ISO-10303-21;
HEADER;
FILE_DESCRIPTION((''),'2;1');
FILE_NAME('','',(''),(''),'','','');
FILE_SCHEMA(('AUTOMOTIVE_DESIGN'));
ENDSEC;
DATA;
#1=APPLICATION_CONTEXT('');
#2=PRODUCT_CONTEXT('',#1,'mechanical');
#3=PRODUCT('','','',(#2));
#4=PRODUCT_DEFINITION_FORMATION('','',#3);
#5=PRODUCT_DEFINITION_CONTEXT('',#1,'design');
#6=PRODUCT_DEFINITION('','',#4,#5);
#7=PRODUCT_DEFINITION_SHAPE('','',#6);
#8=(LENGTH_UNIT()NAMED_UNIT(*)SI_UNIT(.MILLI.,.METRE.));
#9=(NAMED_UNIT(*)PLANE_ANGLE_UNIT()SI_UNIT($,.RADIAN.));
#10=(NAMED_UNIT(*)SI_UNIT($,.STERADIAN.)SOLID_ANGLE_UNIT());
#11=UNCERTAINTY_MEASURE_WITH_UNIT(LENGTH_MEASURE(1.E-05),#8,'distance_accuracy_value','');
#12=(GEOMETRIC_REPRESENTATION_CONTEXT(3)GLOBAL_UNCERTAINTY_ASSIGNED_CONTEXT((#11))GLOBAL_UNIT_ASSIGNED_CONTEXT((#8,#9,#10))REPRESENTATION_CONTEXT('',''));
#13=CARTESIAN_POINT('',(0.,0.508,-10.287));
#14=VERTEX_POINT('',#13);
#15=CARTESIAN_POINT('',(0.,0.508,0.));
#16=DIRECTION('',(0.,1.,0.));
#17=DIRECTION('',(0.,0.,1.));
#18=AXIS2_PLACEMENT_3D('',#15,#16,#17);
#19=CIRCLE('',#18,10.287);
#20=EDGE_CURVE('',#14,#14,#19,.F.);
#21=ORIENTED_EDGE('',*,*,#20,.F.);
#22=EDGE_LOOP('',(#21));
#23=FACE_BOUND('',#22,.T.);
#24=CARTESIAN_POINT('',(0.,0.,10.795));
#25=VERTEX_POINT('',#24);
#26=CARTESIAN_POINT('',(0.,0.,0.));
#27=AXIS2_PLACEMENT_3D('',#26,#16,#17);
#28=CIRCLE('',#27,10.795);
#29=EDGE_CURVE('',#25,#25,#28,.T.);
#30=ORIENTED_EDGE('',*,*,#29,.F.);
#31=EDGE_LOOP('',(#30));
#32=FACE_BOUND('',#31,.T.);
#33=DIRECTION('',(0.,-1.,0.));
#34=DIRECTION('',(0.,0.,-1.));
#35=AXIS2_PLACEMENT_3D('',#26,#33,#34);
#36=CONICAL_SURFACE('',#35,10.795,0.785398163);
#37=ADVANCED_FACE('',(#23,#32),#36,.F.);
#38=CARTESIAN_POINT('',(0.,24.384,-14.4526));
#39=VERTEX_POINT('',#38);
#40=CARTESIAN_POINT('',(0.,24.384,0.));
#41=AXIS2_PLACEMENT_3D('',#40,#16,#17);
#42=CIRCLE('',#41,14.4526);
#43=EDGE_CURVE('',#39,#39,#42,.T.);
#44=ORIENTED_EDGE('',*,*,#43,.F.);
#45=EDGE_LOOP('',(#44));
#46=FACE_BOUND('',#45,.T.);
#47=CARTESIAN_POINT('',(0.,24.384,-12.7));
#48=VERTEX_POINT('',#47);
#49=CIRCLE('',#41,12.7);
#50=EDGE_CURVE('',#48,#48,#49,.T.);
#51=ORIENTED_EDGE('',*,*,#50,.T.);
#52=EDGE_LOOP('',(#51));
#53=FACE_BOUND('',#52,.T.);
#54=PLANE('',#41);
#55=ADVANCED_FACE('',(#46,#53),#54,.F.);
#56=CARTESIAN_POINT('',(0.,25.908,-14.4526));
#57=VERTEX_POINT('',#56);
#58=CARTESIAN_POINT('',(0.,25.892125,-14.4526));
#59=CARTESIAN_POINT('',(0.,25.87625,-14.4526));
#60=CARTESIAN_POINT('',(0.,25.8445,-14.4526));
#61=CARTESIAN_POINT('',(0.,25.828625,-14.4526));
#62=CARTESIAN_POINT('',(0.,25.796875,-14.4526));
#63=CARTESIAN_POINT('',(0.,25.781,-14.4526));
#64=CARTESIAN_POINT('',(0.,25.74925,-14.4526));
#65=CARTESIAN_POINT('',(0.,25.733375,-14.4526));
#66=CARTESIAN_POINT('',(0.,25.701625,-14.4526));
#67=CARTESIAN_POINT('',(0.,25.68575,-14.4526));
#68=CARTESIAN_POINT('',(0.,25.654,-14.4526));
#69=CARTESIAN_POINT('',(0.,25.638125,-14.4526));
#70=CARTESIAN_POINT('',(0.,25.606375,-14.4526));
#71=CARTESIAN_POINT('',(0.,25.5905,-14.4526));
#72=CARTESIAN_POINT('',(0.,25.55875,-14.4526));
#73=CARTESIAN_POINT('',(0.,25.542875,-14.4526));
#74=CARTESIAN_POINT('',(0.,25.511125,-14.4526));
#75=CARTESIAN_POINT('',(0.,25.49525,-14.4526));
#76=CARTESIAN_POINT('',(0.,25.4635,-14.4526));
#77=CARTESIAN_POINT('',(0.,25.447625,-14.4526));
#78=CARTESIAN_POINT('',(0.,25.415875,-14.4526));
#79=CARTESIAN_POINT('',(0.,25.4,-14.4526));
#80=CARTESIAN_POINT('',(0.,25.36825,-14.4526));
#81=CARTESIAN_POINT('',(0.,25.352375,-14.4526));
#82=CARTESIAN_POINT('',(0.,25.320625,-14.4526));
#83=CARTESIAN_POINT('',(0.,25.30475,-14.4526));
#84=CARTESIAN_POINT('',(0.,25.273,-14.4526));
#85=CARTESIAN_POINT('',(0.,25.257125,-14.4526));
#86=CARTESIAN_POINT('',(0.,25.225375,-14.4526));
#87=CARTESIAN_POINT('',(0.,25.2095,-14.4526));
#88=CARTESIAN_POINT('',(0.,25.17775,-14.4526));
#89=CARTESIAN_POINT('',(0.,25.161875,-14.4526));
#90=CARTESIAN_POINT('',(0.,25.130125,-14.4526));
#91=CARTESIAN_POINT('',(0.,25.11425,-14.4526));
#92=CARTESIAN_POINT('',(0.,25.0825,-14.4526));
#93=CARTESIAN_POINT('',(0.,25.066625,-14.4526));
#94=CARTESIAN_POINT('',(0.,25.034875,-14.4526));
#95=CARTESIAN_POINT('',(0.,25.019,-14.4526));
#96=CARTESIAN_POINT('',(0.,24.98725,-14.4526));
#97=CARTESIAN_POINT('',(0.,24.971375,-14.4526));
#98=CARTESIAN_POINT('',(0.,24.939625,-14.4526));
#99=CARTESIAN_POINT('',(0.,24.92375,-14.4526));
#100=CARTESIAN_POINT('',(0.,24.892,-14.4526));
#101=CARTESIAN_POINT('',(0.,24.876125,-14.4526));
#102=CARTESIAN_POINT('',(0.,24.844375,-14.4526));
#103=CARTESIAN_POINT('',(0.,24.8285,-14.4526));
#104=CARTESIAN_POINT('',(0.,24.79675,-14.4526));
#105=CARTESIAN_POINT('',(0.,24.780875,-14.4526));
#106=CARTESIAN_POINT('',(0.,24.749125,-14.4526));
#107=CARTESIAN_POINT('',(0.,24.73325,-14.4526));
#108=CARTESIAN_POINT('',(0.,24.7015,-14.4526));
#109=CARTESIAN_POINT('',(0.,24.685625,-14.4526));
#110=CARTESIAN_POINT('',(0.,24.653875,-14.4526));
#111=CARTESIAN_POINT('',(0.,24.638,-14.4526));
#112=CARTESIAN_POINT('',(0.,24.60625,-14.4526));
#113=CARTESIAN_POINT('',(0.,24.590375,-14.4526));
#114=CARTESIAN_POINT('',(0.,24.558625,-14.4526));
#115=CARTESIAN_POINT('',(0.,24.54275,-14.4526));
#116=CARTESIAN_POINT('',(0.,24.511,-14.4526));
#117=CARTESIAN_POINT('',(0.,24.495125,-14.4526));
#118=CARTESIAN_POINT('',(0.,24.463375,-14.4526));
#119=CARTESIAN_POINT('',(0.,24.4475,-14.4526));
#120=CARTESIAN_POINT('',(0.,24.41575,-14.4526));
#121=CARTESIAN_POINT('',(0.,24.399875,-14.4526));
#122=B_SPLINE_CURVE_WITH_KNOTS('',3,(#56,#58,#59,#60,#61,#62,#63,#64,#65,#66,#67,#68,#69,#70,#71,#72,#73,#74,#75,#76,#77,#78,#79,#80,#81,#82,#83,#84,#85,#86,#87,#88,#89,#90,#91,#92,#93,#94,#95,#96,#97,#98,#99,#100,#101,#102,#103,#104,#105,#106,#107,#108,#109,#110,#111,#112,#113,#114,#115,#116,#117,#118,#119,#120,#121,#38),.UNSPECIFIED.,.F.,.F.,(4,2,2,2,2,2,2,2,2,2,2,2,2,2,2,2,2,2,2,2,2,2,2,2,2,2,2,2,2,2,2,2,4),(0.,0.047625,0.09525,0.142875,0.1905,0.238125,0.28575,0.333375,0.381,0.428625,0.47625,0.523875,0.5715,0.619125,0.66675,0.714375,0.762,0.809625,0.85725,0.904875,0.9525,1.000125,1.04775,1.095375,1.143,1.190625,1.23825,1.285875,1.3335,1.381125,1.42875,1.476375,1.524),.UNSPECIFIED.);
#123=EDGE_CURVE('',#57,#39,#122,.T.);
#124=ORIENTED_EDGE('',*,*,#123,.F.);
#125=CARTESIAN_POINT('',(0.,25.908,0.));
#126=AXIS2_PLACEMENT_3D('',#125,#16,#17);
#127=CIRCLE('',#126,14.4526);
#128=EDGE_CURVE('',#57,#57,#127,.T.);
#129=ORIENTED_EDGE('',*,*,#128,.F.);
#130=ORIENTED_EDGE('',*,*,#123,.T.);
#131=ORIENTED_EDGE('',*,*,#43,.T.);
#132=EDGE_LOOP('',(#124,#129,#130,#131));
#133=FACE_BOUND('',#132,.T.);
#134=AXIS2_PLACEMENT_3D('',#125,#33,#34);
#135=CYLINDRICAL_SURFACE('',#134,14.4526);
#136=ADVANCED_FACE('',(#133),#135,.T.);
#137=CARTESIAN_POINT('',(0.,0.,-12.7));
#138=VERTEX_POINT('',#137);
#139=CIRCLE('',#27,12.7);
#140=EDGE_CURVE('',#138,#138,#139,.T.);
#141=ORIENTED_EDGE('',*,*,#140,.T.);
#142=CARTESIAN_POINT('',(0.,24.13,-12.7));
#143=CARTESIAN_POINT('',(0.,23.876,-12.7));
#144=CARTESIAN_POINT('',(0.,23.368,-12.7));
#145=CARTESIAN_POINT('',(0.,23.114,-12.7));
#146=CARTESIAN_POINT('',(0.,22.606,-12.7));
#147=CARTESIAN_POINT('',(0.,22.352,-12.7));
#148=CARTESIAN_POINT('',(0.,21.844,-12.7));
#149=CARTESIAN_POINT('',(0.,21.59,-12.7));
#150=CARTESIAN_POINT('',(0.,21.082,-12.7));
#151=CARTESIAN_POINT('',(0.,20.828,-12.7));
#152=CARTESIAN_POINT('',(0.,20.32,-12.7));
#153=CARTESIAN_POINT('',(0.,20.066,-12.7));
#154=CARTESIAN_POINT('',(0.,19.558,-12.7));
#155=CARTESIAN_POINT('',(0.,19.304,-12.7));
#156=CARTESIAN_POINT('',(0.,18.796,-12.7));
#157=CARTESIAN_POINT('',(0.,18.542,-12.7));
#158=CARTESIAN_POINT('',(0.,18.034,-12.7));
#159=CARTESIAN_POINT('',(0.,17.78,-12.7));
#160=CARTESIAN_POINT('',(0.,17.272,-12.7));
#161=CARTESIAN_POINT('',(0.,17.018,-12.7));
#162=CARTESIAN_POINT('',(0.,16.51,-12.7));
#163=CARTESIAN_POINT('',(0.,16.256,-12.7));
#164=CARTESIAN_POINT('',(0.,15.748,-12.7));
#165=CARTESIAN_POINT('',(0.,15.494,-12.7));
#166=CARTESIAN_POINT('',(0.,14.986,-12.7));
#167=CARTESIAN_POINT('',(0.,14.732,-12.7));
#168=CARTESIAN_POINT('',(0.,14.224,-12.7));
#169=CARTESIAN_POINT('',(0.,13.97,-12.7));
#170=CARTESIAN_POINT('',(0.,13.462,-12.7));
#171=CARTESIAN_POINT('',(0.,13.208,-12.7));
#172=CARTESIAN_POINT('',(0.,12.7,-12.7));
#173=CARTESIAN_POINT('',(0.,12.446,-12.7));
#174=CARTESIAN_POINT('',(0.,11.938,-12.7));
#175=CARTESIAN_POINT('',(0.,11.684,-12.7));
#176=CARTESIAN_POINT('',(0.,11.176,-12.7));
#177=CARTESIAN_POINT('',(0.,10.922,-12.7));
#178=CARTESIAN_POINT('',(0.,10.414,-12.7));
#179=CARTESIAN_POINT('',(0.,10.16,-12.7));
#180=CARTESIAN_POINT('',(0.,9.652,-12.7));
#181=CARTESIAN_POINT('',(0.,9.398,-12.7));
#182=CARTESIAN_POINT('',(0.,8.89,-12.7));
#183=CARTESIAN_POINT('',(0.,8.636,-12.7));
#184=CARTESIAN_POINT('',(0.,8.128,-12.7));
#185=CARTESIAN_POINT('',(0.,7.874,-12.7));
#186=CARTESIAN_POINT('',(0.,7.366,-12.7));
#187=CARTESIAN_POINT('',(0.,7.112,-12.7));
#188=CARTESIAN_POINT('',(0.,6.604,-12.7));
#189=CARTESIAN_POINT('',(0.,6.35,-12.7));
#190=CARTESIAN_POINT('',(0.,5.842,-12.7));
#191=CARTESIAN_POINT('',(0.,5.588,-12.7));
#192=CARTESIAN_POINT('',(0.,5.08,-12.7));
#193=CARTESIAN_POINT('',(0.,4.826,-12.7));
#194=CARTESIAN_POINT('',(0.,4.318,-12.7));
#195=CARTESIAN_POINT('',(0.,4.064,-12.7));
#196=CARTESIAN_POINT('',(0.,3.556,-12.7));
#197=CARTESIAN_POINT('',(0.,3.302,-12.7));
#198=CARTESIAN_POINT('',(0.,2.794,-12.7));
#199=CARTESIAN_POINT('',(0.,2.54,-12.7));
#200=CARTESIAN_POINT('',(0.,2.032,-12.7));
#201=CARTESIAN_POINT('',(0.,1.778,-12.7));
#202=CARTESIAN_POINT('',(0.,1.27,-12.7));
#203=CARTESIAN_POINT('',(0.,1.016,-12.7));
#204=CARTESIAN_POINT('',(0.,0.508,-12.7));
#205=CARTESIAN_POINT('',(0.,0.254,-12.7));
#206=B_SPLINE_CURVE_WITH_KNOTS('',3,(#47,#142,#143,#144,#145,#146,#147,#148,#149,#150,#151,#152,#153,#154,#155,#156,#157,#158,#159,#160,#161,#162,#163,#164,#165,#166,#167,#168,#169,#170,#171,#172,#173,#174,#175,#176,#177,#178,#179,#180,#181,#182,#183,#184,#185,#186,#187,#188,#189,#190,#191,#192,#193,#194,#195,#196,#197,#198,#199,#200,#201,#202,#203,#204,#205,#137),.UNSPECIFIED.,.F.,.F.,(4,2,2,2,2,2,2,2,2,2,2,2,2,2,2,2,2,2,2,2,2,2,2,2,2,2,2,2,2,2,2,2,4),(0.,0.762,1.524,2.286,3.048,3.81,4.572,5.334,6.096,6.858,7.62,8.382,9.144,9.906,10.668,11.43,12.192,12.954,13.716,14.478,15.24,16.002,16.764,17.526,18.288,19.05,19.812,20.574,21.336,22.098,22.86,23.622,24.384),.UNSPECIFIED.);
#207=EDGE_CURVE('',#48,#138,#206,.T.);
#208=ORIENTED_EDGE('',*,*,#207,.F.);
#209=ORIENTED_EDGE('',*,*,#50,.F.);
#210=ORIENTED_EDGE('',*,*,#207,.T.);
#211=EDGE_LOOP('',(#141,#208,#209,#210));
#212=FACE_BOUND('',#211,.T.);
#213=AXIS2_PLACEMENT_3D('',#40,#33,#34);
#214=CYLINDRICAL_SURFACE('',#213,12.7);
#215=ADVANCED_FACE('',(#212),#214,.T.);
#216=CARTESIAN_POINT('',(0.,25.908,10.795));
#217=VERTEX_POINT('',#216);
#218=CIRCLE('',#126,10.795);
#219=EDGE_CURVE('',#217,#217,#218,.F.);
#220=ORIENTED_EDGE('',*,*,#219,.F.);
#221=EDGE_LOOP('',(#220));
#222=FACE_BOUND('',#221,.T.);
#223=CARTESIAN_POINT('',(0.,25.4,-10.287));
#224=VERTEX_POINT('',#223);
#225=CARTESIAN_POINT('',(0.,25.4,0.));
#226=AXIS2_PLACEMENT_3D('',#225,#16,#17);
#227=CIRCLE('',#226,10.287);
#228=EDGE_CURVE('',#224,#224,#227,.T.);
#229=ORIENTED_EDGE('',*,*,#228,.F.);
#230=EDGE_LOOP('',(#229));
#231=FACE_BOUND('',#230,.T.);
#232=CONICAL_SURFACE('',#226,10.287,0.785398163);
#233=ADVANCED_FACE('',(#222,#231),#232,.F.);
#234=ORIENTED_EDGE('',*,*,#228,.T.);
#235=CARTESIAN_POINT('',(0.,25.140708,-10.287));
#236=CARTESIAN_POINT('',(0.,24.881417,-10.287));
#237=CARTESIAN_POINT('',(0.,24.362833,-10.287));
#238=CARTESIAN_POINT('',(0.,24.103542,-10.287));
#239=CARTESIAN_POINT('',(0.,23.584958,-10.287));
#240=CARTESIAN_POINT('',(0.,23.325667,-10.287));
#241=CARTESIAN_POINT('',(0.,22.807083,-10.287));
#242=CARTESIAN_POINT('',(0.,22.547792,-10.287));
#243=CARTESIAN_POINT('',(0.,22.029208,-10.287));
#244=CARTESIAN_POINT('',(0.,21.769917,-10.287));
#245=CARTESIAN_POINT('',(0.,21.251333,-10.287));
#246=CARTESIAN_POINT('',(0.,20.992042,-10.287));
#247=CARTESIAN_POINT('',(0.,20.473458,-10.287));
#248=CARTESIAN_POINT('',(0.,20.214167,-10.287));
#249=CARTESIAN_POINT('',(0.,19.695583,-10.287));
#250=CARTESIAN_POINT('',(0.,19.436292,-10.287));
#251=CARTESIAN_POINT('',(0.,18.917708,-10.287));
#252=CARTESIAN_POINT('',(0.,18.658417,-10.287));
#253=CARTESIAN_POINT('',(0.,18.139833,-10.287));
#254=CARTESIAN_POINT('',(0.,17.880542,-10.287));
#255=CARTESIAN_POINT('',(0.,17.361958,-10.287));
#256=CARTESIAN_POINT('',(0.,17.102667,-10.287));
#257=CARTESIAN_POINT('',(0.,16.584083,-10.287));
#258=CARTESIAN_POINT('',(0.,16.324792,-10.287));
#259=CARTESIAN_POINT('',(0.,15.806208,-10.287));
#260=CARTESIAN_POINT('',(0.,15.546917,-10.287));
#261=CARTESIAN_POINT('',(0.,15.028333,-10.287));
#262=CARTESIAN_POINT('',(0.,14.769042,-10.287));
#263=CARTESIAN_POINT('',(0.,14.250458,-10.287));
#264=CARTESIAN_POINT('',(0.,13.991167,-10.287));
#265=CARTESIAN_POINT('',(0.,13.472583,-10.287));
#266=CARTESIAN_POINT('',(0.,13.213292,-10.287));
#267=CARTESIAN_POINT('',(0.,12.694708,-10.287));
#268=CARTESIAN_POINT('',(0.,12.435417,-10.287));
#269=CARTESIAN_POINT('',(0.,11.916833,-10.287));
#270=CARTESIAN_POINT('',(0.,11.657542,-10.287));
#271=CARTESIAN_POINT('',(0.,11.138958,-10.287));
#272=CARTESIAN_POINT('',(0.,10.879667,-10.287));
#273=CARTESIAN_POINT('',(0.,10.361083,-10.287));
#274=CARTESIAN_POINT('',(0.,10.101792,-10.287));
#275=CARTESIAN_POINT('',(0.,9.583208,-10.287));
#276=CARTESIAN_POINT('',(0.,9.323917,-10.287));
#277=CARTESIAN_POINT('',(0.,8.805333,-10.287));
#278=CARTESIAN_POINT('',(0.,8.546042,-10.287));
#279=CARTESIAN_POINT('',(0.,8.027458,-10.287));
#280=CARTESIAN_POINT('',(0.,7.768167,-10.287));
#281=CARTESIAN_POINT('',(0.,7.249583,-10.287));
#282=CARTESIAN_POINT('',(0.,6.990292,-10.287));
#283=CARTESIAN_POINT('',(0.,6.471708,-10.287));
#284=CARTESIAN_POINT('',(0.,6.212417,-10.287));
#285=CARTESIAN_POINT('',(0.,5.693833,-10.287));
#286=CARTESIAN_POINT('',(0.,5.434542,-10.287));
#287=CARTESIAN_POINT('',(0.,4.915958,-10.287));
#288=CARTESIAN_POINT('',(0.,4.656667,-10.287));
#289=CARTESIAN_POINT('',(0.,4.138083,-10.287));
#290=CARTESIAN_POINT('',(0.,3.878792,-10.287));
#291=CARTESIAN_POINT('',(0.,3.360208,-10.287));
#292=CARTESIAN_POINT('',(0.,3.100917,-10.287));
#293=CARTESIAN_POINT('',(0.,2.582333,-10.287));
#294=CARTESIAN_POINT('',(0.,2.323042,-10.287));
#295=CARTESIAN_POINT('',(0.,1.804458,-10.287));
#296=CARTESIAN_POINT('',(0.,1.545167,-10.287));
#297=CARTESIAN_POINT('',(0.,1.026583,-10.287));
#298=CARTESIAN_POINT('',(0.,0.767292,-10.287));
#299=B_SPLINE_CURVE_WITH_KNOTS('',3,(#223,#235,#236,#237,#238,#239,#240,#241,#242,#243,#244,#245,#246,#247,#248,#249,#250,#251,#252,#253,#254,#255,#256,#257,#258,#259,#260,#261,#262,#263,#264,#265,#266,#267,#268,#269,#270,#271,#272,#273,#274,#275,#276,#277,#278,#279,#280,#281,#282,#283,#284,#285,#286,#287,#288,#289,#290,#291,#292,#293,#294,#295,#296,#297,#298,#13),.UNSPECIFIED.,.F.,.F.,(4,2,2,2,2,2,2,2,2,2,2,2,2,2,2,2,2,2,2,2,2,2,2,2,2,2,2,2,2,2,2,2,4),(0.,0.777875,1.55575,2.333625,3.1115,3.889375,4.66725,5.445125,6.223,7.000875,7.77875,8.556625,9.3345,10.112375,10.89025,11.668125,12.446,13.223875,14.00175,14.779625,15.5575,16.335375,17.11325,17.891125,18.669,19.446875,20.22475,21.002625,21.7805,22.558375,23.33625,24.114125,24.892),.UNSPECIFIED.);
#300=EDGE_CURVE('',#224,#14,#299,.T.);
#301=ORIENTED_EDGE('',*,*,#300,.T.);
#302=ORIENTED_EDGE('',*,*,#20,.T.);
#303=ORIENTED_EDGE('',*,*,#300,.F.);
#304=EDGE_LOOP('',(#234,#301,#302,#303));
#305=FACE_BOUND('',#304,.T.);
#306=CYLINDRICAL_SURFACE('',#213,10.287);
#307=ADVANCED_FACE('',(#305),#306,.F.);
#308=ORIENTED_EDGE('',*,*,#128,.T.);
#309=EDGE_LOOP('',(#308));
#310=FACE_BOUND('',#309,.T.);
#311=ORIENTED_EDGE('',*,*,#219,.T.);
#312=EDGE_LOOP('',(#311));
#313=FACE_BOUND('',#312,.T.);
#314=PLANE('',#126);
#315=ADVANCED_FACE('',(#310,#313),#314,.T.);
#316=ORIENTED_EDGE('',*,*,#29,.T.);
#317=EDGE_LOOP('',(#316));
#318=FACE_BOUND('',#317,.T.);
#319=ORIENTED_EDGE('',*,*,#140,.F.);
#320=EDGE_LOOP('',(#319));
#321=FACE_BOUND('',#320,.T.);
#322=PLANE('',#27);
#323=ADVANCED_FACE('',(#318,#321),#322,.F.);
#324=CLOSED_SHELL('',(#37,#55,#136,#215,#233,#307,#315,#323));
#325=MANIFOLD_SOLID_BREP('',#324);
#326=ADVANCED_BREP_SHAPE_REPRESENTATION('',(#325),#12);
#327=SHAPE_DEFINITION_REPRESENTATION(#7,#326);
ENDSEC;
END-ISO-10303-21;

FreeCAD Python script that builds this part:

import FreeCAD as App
import Part
import Sketcher
from FreeCAD import Vector
Q = App.Units.Quantity


def edges_at(feature, points):
    """Names of the edges that pass closest to the given points."""
    edges = feature.Shape.Edges
    near = lambda p: min(range(len(edges)), key=lambda i: edges[i].distToShape(Part.Vertex(*p))[0])
    return sorted({f"Edge{near(p) + 1}" for p in points})

doc = App.newDocument("Part")
params = doc.addObject("Spreadsheet::Sheet", "Params")
for row, (alias, value) in enumerate([
    ("sketch1_diameter", "1 in"),
    ("sketch1_diameter2", "0.81 in"),
    ("pad1_length", "0.96 in"),
    ("sketch2_diameter", "0.81 in"),
    ("sketch2_diameter2", "1.138 in"),
    ("pad2_length", "0.06 in"),
    ("chamfer_size", "0.02 in"),
], start=1):
    params.set(f"A{row}", alias)
    params.set(f"B{row}", "=" + value)
    params.setAlias(f"B{row}", alias)

body = doc.addObject("PartDesign::Body", "Body")

# Sketch on XZ plane
sketch1 = body.newObject("Sketcher::SketchObject", "Sketch")
sketch1.AttachmentSupport = (doc.getObject("XZ_Plane"), [""])
sketch1.MapMode = "FlatFace"
sketch1.addGeometry([
    Part.Circle(Vector(0, 0, 0), Vector(0, 0, 1), 13),
    Part.Circle(Vector(0, 0, 0), Vector(0, 0, 1), 10),
], False)
sketch1.addConstraint([
    Sketcher.Constraint("Coincident", 0, 3, -1, 1),
    Sketcher.Constraint("Coincident", 1, 3, -1, 1),
    Sketcher.Constraint("Diameter", 0, Q("1 in")),
    Sketcher.Constraint("Diameter", 1, Q("0.81 in")),
])
sketch1.setExpression("Constraints[2]", "Params.sketch1_diameter")
sketch1.setExpression("Constraints[3]", "Params.sketch1_diameter2")
pad1 = body.newObject("PartDesign::Pad", "Pad")
pad1.Profile = sketch1
pad1.setExpression("Length", "Params.pad1_length")
pad1.Reversed = True

# Sketch on XZ plane
sketch2 = body.newObject("Sketcher::SketchObject", "Sketch001")
sketch2.AttachmentSupport = (doc.getObject("XZ_Plane"), [""])
sketch2.MapMode = "FlatFace"
sketch2.AttachmentOffset = App.Placement(Vector(0, 0, -0.96 * 25.4), App.Rotation())
sketch2.addGeometry([
    Part.Circle(Vector(0, 0, 0), Vector(0, 0, 1), 14),
    Part.Circle(Vector(0, 0, 0), Vector(0, 0, 1), 10),
], False)
sketch2.addConstraint([
    Sketcher.Constraint("Coincident", 0, 3, -1, 1),
    Sketcher.Constraint("Coincident", 1, 3, -1, 1),
    Sketcher.Constraint("Diameter", 1, Q("0.81 in")),
    Sketcher.Constraint("Diameter", 0, Q("1.138 in")),
])
sketch2.setExpression("Constraints[2]", "Params.sketch2_diameter")
sketch2.setExpression("Constraints[3]", "Params.sketch2_diameter2")
pad2 = body.newObject("PartDesign::Pad", "Pad001")
pad2.Profile = sketch2
pad2.setExpression("Length", "Params.pad2_length")
pad2.Reversed = True
doc.recompute()

chamfer = body.newObject("PartDesign::Chamfer", "Chamfer")
chamfer.Base = (pad2, edges_at(pad2, [(0, 25.908, 10.287), (0, 0, 10.287)]))
chamfer.setExpression("Size", "Params.chamfer_size")

doc.recompute()
